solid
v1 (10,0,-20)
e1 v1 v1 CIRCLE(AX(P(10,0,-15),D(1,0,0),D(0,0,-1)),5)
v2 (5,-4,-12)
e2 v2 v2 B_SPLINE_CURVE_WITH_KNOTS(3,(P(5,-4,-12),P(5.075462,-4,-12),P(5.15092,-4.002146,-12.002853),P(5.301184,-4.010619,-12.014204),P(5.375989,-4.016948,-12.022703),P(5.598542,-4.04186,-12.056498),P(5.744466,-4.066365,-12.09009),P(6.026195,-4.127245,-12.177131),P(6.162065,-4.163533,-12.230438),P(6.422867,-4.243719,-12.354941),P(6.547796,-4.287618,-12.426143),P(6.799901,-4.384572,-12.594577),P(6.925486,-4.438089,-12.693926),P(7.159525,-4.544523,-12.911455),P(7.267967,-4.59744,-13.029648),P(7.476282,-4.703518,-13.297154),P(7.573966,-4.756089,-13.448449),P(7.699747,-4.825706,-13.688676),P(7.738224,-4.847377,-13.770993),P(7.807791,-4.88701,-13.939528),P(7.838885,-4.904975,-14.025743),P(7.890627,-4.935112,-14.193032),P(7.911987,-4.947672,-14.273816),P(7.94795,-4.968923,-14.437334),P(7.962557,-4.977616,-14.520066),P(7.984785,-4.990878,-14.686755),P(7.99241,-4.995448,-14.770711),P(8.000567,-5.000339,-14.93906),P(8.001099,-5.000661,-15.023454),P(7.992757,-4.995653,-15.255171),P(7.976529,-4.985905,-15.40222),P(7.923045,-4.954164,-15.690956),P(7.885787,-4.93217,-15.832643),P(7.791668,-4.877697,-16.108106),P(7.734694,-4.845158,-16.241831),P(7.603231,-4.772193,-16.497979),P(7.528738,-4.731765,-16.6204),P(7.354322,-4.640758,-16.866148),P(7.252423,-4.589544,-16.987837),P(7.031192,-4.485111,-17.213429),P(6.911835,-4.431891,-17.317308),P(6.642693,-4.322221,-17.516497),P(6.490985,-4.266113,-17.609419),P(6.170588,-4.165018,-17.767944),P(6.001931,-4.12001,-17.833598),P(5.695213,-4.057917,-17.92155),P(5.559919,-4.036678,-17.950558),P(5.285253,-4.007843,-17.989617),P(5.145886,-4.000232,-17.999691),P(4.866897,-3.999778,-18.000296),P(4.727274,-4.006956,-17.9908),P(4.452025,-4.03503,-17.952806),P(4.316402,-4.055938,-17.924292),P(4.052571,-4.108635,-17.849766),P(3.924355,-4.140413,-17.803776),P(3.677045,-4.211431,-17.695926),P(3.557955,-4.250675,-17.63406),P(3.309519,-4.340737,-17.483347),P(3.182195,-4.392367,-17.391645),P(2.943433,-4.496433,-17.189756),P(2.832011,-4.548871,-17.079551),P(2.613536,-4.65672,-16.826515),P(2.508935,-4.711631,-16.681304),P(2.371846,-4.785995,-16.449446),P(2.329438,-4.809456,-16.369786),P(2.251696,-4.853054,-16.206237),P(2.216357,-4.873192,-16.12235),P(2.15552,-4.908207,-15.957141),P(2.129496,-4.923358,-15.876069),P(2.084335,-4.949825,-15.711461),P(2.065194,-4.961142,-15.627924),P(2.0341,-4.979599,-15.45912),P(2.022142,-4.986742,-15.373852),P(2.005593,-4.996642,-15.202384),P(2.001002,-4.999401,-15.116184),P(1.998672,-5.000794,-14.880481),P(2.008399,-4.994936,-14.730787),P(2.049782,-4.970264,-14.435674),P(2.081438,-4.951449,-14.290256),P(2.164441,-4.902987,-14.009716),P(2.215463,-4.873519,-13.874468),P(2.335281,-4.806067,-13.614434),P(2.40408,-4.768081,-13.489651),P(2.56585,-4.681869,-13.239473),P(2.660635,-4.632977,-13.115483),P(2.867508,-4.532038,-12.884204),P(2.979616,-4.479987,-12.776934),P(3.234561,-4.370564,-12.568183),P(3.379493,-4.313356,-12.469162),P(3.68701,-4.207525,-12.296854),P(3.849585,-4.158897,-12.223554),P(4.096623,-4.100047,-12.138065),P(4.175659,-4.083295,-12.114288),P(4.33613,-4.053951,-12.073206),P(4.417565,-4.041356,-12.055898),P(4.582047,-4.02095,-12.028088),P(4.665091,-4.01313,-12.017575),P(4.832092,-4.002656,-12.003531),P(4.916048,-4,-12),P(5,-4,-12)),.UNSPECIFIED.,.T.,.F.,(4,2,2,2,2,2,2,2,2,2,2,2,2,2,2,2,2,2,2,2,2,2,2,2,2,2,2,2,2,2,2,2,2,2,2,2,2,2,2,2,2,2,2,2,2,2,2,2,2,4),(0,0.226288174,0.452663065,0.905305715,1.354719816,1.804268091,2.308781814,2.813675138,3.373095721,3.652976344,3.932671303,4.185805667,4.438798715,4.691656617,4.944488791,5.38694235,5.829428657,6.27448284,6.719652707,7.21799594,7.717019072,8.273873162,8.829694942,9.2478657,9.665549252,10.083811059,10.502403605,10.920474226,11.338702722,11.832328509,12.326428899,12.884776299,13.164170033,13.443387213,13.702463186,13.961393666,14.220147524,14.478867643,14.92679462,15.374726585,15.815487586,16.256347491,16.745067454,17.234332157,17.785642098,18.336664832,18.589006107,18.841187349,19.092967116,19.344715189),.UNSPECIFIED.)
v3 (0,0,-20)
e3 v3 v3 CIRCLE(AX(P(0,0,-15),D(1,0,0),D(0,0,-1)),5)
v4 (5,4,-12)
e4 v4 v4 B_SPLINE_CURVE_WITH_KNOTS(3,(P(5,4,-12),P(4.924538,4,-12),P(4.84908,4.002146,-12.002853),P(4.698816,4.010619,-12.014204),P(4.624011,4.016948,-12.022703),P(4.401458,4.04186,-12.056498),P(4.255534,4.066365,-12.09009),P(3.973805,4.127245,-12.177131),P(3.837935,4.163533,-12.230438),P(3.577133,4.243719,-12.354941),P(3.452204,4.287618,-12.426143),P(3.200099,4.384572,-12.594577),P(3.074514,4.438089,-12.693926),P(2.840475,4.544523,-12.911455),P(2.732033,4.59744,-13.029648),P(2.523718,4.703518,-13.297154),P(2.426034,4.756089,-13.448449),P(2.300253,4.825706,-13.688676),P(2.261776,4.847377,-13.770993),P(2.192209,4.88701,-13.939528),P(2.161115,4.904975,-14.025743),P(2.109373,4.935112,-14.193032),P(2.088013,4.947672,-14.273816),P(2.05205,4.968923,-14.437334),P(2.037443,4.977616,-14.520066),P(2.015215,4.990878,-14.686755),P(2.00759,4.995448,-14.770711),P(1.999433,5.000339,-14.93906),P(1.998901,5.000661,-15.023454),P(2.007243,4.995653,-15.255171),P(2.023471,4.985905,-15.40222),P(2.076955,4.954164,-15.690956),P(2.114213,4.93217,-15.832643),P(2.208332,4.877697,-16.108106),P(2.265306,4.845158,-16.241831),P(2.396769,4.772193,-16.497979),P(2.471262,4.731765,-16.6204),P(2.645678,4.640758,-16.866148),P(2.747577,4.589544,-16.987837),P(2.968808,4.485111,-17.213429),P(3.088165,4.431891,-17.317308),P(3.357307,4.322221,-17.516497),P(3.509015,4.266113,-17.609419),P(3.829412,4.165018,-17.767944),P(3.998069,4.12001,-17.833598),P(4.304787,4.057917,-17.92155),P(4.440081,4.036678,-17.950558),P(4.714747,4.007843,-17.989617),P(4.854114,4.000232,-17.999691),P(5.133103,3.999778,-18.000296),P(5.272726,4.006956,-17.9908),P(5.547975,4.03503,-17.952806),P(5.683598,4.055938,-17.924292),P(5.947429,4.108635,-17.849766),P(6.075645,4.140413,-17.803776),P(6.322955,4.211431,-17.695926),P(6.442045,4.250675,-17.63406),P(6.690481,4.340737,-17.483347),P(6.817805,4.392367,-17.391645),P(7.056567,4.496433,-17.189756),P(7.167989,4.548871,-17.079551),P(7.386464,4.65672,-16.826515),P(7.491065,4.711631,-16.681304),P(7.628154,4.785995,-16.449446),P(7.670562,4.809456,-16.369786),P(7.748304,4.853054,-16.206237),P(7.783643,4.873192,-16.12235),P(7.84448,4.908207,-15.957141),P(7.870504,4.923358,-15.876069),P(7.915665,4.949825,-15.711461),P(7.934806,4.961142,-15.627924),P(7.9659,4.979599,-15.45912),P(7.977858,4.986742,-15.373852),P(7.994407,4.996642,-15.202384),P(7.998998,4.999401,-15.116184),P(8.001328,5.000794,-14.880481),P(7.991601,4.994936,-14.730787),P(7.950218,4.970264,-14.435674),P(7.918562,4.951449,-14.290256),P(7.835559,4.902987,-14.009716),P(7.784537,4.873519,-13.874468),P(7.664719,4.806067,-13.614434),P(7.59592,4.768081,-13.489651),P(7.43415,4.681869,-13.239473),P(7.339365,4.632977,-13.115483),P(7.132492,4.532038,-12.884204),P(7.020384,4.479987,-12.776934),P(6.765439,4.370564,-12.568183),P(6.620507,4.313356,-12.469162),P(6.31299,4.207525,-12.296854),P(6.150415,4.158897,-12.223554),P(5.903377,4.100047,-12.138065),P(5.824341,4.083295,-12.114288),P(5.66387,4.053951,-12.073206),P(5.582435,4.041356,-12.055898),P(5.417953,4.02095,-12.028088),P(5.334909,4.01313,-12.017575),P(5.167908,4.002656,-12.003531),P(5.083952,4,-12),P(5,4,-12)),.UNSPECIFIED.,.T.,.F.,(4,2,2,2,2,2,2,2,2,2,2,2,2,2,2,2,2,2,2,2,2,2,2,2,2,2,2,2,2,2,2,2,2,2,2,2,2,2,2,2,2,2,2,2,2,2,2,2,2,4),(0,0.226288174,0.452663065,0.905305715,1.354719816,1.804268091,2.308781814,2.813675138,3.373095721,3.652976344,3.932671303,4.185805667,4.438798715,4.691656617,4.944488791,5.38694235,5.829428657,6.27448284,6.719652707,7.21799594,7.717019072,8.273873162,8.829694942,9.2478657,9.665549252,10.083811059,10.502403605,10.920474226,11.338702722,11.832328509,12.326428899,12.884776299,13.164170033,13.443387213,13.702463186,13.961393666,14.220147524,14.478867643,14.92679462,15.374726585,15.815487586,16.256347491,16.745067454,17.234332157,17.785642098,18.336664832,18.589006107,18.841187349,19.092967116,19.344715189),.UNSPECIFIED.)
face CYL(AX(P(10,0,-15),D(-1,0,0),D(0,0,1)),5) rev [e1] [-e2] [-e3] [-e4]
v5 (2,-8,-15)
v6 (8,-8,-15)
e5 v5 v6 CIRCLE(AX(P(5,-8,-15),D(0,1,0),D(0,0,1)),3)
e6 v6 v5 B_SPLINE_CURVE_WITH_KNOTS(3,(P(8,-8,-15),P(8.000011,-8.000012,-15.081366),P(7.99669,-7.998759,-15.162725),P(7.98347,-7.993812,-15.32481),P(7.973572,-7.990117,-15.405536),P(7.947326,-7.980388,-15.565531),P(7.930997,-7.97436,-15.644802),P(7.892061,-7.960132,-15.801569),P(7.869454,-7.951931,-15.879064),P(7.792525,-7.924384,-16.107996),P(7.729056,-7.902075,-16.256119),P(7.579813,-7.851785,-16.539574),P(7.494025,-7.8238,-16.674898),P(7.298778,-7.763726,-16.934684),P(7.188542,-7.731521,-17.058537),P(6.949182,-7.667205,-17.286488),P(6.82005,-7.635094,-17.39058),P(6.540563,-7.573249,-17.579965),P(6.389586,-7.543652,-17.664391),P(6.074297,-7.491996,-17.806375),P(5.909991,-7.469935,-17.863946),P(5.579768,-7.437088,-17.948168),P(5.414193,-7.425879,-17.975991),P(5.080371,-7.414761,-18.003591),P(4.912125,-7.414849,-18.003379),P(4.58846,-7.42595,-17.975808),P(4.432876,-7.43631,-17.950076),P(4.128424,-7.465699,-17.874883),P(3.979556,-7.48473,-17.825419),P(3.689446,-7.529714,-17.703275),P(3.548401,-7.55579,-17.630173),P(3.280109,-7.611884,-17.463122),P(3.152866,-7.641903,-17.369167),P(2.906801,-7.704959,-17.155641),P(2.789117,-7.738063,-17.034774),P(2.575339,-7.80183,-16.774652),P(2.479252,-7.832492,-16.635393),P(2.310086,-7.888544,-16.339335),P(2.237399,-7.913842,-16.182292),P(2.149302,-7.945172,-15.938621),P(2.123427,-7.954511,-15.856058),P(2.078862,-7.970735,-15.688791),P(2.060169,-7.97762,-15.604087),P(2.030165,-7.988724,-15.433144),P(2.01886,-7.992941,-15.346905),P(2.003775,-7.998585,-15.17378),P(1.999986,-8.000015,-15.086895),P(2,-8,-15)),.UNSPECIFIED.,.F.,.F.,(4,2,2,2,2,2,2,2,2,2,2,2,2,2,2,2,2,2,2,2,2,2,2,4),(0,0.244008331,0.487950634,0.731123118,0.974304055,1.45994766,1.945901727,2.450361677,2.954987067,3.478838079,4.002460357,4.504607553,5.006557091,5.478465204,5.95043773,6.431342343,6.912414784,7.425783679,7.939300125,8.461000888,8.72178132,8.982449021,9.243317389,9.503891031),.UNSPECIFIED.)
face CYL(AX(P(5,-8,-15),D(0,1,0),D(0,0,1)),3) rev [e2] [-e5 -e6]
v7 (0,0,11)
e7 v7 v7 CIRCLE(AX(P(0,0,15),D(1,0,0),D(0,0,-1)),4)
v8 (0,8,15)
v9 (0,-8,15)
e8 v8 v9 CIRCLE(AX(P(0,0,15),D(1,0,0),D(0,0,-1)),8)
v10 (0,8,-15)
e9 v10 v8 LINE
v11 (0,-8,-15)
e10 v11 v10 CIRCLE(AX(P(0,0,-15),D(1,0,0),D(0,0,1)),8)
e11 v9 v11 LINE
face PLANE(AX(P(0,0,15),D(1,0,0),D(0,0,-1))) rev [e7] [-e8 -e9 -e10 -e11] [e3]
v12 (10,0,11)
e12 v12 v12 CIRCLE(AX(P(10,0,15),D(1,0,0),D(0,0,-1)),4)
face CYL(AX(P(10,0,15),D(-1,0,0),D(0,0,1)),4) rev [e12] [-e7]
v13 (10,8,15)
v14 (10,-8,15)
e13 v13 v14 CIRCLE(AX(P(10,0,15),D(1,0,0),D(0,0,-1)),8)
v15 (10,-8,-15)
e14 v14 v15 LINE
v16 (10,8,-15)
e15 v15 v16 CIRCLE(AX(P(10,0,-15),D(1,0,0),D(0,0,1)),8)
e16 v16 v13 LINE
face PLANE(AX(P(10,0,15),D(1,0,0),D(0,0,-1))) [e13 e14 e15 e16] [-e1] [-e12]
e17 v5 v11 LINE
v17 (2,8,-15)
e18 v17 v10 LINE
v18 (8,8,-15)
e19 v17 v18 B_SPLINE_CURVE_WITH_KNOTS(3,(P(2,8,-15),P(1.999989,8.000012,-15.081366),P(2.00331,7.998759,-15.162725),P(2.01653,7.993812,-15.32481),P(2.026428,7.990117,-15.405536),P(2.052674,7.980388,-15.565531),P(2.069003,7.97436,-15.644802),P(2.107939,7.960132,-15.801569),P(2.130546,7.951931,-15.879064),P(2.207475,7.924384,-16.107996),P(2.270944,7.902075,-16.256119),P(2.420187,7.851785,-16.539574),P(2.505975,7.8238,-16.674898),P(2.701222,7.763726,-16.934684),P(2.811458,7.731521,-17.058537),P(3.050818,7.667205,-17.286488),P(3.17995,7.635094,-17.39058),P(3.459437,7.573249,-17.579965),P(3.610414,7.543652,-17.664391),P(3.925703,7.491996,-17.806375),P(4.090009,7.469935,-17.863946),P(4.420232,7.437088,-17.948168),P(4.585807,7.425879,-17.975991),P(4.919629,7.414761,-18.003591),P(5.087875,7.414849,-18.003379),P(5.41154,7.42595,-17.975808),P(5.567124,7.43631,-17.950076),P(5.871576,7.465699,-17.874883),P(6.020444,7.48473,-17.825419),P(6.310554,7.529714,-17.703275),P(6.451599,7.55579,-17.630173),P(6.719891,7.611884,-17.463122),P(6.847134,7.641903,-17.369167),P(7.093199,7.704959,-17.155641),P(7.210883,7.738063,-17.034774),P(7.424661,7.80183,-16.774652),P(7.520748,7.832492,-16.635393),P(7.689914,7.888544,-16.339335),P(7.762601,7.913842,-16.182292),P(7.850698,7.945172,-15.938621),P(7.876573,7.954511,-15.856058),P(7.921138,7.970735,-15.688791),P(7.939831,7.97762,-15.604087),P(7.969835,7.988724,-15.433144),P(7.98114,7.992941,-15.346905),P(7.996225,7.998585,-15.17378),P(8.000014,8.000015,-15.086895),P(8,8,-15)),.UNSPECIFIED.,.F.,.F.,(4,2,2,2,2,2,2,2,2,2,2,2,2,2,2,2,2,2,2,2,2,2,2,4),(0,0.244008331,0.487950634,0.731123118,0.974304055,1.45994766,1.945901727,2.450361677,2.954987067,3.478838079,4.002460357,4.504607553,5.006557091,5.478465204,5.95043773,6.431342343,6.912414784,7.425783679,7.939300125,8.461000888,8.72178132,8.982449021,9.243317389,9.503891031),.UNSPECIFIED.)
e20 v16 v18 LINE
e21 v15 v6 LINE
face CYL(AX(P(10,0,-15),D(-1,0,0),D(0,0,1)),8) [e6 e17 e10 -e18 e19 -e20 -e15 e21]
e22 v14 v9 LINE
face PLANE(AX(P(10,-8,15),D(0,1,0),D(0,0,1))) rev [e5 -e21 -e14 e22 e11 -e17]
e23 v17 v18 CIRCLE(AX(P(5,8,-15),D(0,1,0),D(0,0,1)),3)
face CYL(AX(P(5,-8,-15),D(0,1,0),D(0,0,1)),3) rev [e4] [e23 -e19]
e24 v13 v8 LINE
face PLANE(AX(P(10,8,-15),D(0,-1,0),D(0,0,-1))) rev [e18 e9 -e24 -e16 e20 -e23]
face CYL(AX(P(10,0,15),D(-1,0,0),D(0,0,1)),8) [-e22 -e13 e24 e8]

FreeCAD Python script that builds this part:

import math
import FreeCAD as App
import Part
import Sketcher
from FreeCAD import Vector

doc = App.newDocument("Part")
params = doc.addObject("Spreadsheet::Sheet", "Params")
for row, (alias, value) in enumerate([
    ("sketch1_diameter", "8 mm"),
    ("sketch1_diameter2", "10 mm"),
    ("sketch1_radius", "8 mm"),
    ("sketch1_height", "30 mm"),
    ("pad1_length", "10 mm"),
    ("sketch2_diameter", "6 mm"),
], start=1):
    params.set(f"A{row}", alias)
    params.set(f"B{row}", "=" + value)
    params.setAlias(f"B{row}", alias)

body = doc.addObject("PartDesign::Body", "Body")

# Sketch on YZ plane
sketch1 = body.newObject("Sketcher::SketchObject", "Sketch")
sketch1.AttachmentSupport = (doc.getObject("YZ_Plane"), [""])
sketch1.MapMode = "FlatFace"
sketch1.addGeometry([
    Part.LineSegment(Vector(8, -15, 0), Vector(8, 15, 0)),  # 0
    Part.ArcOfCircle(Part.Circle(Vector(0, 15, 0), Vector(0, 0, 1), 8), math.radians(0), math.radians(180)),  # 1
    Part.LineSegment(Vector(-8, 15, 0), Vector(-8, -15, 0)),  # 2
    Part.ArcOfCircle(Part.Circle(Vector(0, -15, 0), Vector(0, 0, 1), 8), math.radians(180), math.radians(360)),  # 3
    Part.Circle(Vector(0, 15, 0), Vector(0, 0, 1), 4),  # 4
    Part.Circle(Vector(0, -15, 0), Vector(0, 0, 1), 5),  # 5
], False)
sketch1.addConstraint([
    Sketcher.Constraint("Tangent", 0, 2, 1, 1),
    Sketcher.Constraint("Tangent", 1, 2, 2, 1),
    Sketcher.Constraint("Tangent", 2, 2, 3, 1),
    Sketcher.Constraint("Tangent", 3, 2, 0, 1),
    Sketcher.Constraint("Vertical", 0),
    Sketcher.Constraint("Vertical", 2),
    Sketcher.Constraint("Coincident", 4, 3, 1, 3),
    Sketcher.Constraint("Coincident", 5, 3, 3, 3),
    Sketcher.Constraint("Symmetric", 1, 3, 3, 3, -1, 1),
    Sketcher.Constraint("Diameter", 4, 8.0),
    Sketcher.Constraint("Diameter", 5, 10.0),
    Sketcher.Constraint("Radius", 1, 8.0),
    Sketcher.Constraint("DistanceY", 0, 1, 0, 2, 30.0),
])
sketch1.setExpression("Constraints[9]", "Params.sketch1_diameter")
sketch1.setExpression("Constraints[10]", "Params.sketch1_diameter2")
sketch1.setExpression("Constraints[11]", "Params.sketch1_radius")
sketch1.setExpression("Constraints[12]", "Params.sketch1_height")
pad1 = body.newObject("PartDesign::Pad", "Pad")
pad1.Profile = sketch1
pad1.setExpression("Length", "Params.pad1_length")

# Sketch on XZ plane
sketch2 = body.newObject("Sketcher::SketchObject", "Sketch001")
sketch2.AttachmentSupport = (doc.getObject("XZ_Plane"), [""])
sketch2.MapMode = "FlatFace"
sketch2.AttachmentOffset = App.Placement(Vector(0, 0, -8), App.Rotation())
sketch2.addGeometry(Part.Circle(Vector(5, -15, 0), Vector(0, 0, 1), 3), False)
sketch2.addConstraint([
    Sketcher.Constraint("Diameter", 0, 6.0),
    Sketcher.Constraint("DistanceX", -1, 1, 0, 3, 5.0),
    Sketcher.Constraint("DistanceY", 0, 3, -1, 1, 15.0),
])
sketch2.setExpression("Constraints[0]", "Params.sketch2_diameter")
pocket1 = body.newObject("PartDesign::Pocket", "Pocket")
pocket1.Profile = sketch2
pocket1.Type = "ThroughAll"
pocket1.Reversed = True

doc.recompute()
